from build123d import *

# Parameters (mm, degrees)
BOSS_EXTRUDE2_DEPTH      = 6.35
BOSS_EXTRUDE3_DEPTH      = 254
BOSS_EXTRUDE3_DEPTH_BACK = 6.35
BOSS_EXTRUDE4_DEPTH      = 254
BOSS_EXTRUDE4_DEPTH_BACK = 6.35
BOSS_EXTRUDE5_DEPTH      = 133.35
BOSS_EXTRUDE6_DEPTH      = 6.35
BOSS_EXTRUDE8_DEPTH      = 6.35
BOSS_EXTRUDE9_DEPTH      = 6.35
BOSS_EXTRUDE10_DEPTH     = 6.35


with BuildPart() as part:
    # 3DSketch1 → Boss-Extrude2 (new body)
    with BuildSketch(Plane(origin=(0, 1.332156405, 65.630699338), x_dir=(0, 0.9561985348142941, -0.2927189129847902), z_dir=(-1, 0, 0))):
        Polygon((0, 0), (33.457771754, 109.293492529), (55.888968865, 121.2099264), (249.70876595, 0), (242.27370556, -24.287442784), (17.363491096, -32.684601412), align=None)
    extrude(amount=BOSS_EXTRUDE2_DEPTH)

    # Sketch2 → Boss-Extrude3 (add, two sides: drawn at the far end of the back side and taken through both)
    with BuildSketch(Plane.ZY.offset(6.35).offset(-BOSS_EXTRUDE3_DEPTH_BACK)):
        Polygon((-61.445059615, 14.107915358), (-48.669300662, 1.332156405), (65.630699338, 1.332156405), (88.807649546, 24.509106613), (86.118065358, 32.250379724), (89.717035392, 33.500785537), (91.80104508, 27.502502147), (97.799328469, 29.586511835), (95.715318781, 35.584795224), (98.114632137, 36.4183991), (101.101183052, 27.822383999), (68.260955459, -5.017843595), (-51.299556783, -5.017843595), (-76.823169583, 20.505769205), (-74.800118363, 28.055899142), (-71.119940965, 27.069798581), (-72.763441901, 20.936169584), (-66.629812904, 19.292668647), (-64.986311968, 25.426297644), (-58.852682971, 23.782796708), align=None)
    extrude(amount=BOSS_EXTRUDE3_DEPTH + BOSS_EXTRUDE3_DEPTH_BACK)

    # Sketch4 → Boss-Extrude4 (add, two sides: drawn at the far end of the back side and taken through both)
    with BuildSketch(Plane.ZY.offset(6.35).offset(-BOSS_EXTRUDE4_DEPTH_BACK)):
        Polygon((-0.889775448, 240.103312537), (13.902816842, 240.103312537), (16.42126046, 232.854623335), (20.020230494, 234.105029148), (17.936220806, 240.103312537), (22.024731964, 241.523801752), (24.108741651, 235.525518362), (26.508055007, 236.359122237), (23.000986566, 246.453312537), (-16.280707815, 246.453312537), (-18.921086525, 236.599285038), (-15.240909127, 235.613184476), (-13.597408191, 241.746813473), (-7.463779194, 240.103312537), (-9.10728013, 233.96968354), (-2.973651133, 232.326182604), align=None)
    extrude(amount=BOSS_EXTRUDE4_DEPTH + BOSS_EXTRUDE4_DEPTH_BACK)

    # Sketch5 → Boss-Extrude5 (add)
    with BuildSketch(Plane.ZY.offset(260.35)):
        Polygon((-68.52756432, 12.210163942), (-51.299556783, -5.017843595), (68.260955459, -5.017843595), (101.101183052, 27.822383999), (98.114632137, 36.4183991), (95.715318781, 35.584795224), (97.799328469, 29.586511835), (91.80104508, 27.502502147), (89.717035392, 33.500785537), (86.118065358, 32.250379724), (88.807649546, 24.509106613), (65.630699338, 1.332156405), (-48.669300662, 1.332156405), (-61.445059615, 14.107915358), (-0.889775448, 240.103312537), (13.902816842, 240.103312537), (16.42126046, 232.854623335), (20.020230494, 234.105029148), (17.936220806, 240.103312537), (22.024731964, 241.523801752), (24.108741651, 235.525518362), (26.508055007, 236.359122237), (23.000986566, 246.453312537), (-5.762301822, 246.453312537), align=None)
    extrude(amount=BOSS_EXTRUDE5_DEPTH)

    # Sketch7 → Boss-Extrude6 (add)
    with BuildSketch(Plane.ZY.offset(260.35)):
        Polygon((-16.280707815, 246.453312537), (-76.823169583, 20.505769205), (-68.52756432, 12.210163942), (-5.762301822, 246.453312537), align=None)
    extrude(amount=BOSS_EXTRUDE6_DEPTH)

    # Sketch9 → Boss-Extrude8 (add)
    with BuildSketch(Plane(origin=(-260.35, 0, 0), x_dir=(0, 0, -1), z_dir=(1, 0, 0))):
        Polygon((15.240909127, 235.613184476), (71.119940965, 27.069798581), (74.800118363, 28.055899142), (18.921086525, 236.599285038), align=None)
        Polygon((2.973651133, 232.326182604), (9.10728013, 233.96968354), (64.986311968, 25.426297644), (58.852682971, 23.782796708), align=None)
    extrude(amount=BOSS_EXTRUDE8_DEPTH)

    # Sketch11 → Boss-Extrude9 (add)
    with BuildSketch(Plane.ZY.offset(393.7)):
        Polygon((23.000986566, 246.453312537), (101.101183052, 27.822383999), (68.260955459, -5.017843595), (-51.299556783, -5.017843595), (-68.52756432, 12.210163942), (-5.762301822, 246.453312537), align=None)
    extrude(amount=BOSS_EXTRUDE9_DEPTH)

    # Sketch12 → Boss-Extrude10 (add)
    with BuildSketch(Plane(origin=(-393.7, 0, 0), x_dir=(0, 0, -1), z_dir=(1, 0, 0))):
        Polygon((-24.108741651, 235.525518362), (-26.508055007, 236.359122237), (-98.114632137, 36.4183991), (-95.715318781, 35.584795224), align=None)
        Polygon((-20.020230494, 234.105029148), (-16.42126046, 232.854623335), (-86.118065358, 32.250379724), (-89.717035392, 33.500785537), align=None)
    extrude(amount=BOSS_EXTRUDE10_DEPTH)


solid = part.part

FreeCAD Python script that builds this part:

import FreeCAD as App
import Part
import Sketcher
from FreeCAD import Vector
Q = App.Units.Quantity

doc = App.newDocument("Part")
params = doc.addObject("Spreadsheet::Sheet", "Params")
for row, (alias, value) in enumerate([
    ("sketch1_height", "1 in"),
    ("sketch1_length", "9 in"),
    ("sketch1_length2", "1 in"),
    ("sketch1_height2", "4.5 in"),
    ("pad1_length", "0.25 in"),
    ("sketch2_height", "4.5 in"),
    ("sketch2_length", "0.1 in"),
    ("sketch2_length2", "0.25 in"),
    ("sketch2_length3", "0.15 in"),
    ("pad2_length", "10 in"),
    ("pad2_length2", "0.25 in"),
    ("sketch3_length", "0.1 in"),
    ("sketch3_length2", "0.15 in"),
    ("sketch3_length3", "0.25 in"),
    ("pad3_length", "10 in"),
    ("pad3_length2", "0.25 in"),
    ("sketch4_height", "4.5 in"),
    ("sketch4_length", "0.1 in"),
    ("sketch4_length2", "0.25 in"),
    ("sketch4_length3", "0.15 in"),
    ("pad4_length", "5.25 in"),
    ("pad5_length", "0.25 in"),
    ("sketch6_length", "8.5 in"),
    ("sketch6_length2", "0.15 in"),
    ("sketch6_length3", "0.25 in"),
    ("pad6_length", "0.25 in"),
    ("pad7_length", "0.25 in"),
    ("sketch8_length", "0.1 in"),
    ("sketch8_length2", "0.1 in"),
    ("sketch8_length3", "0.15 in"),
    ("sketch8_length4", "0.15 in"),
    ("pad8_length", "0.25 in"),
], start=1):
    params.set(f"A{row}", alias)
    params.set(f"B{row}", "=" + value)
    params.setAlias(f"B{row}", alias)

body = doc.addObject("PartDesign::Body", "Body")

sketch1 = body.newObject("Sketcher::SketchObject", "Sketch")
sketch1.AttachmentSupport = (doc.getObject("YZ_Plane"), [""])
sketch1.MapMode = "FlatFace"
sketch1.addGeometry([
    Part.LineSegment(Vector(1, -49, 0), Vector(1, 66, 0)),
    Part.LineSegment(Vector(1, 66, 0), Vector(28, 92, 0)),
    Part.LineSegment(Vector(28, 92, 0), Vector(240, 18, 0)),
    Part.LineSegment(Vector(240, 18, 0), Vector(240, -7, 0)),
    Part.LineSegment(Vector(240, -7, 0), Vector(19, -67, 0)),
    Part.LineSegment(Vector(19, -67, 0), Vector(1, -49, 0)),
], False)
sketch1.addConstraint([
    Sketcher.Constraint("Coincident", 0, 2, 1, 1),
    Sketcher.Constraint("Coincident", 1, 2, 2, 1),
    Sketcher.Constraint("Coincident", 2, 2, 3, 1),
    Sketcher.Constraint("Coincident", 3, 2, 4, 1),
    Sketcher.Constraint("Coincident", 4, 2, 5, 1),
    Sketcher.Constraint("Coincident", 5, 2, 0, 1),
    Sketcher.Constraint("Vertical", 0),
    Sketcher.Constraint("Vertical", 3),
    Sketcher.Constraint("Perpendicular", 1, 5),
    Sketcher.Constraint("DistanceY", 3, 2, 3, 1, Q("1 in")),
    Sketcher.Constraint("Distance", 4, Q("9 in")),
    Sketcher.Constraint("Distance", 5, Q("1 in")),
    Sketcher.Constraint("DistanceY", 0, 1, 0, 2, Q("4.5 in")),
    Sketcher.Constraint("Angle", 1, Q("45 deg")),
    Sketcher.Constraint("Angle", 4, Q("-165 deg")),
    Sketcher.Constraint("DistanceY", -1, 1, 0, 2, 65.630699),
    Sketcher.Constraint("DistanceX", -1, 1, 4, 2, 19.292669),
    Sketcher.Constraint("DistanceX", 1, 2, 2, 2, 212.60081),
])
sketch1.setExpression("Constraints[9]", "Params.sketch1_height")
sketch1.setExpression("Constraints[10]", "Params.sketch1_length")
sketch1.setExpression("Constraints[11]", "Params.sketch1_length2")
sketch1.setExpression("Constraints[12]", "Params.sketch1_height2")
pad1 = body.newObject("PartDesign::Pad", "Pad")
pad1.Profile = sketch1
pad1.setExpression("Length", "Params.pad1_length")
pad1.Reversed = True

sketch2 = body.newObject("Sketcher::SketchObject", "Sketch001")
sketch2.AttachmentSupport = (doc.getObject("YZ_Plane"), [""])
sketch2.MapMode = "FlatFace"
sketch2.AttachmentOffset = App.Placement(Vector(0, 0, -0.25 * 25.4), App.Rotation())
sketch2.addGeometry([
    Part.LineSegment(Vector(1.3, -48.7, 0), Vector(14.1, -61.4, 0)),
    Part.LineSegment(Vector(14.1, -61.4, 0), Vector(23.8, -58.9, 0)),
    Part.LineSegment(Vector(23.8, -58.9, 0), Vector(25.4, -65, 0)),
    Part.LineSegment(Vector(25.4, -65, 0), Vector(19.3, -66.6, 0)),
    Part.LineSegment(Vector(19.3, -66.6, 0), Vector(20.9, -72.8, 0)),
    Part.LineSegment(Vector(20.9, -72.8, 0), Vector(27.1, -71.1, 0)),
    Part.LineSegment(Vector(27.1, -71.1, 0), Vector(28.1, -74.8, 0)),
    Part.LineSegment(Vector(28.1, -74.8, 0), Vector(20.5, -76.8, 0)),
    Part.LineSegment(Vector(20.5, -76.8, 0), Vector(-5, -51.3, 0)),
    Part.LineSegment(Vector(-5, -51.3, 0), Vector(-5, 68.3, 0)),
    Part.LineSegment(Vector(-5, 68.3, 0), Vector(27.8, 101.1, 0)),
    Part.LineSegment(Vector(27.8, 101.1, 0), Vector(36.4, 98.1, 0)),
    Part.LineSegment(Vector(36.4, 98.1, 0), Vector(35.6, 95.7, 0)),
    Part.LineSegment(Vector(35.6, 95.7, 0), Vector(29.6, 97.8, 0)),
    Part.LineSegment(Vector(29.6, 97.8, 0), Vector(27.5, 91.8, 0)),
    Part.LineSegment(Vector(27.5, 91.8, 0), Vector(33.5, 89.7, 0)),
    Part.LineSegment(Vector(33.5, 89.7, 0), Vector(32.3, 86.1, 0)),
    Part.LineSegment(Vector(32.3, 86.1, 0), Vector(24.5, 88.8, 0)),
    Part.LineSegment(Vector(24.5, 88.8, 0), Vector(1.3, 65.6, 0)),
    Part.LineSegment(Vector(1.3, 65.6, 0), Vector(1.3, -48.7, 0)),
], False)
sketch2.addConstraint([
    Sketcher.Constraint("Coincident", 0, 2, 1, 1),
    Sketcher.Constraint("Coincident", 1, 2, 2, 1),
    Sketcher.Constraint("Coincident", 2, 2, 3, 1),
    Sketcher.Constraint("Coincident", 3, 2, 4, 1),
    Sketcher.Constraint("Coincident", 4, 2, 5, 1),
    Sketcher.Constraint("Coincident", 5, 2, 6, 1),
    Sketcher.Constraint("Coincident", 6, 2, 7, 1),
    Sketcher.Constraint("Coincident", 7, 2, 8, 1),
    Sketcher.Constraint("Coincident", 8, 2, 9, 1),
    Sketcher.Constraint("Coincident", 9, 2, 10, 1),
    Sketcher.Constraint("Coincident", 10, 2, 11, 1),
    Sketcher.Constraint("Coincident", 11, 2, 12, 1),
    Sketcher.Constraint("Coincident", 12, 2, 13, 1),
    Sketcher.Constraint("Coincident", 13, 2, 14, 1),
    Sketcher.Constraint("Coincident", 14, 2, 15, 1),
    Sketcher.Constraint("Coincident", 15, 2, 16, 1),
    Sketcher.Constraint("Coincident", 16, 2, 17, 1),
    Sketcher.Constraint("Coincident", 17, 2, 18, 1),
    Sketcher.Constraint("Coincident", 18, 2, 19, 1),
    Sketcher.Constraint("Coincident", 19, 2, 0, 1),
    Sketcher.Constraint("Vertical", 9),
    Sketcher.Constraint("Vertical", 19),
    Sketcher.Constraint("Perpendicular", 1, 2),
    Sketcher.Constraint("Perpendicular", 2, 3),
    Sketcher.Constraint("Perpendicular", 3, 4),
    Sketcher.Constraint("Perpendicular", 4, 5),
    Sketcher.Constraint("Perpendicular", 5, 6),
    Sketcher.Constraint("Perpendicular", 6, 7),
    Sketcher.Constraint("Parallel", 0, 8),
    Sketcher.Constraint("Perpendicular", 8, 10),
    Sketcher.Constraint("Perpendicular", 11, 12),
    Sketcher.Constraint("Perpendicular", 12, 13),
    Sketcher.Constraint("Perpendicular", 13, 14),
    Sketcher.Constraint("Perpendicular", 14, 15),
    Sketcher.Constraint("Perpendicular", 15, 16),
    Sketcher.Constraint("Perpendicular", 16, 17),
    Sketcher.Constraint("Parallel", 10, 18),
    Sketcher.Constraint("Equal", 2, 3),
    Sketcher.Constraint("Equal", 3, 4),
    Sketcher.Constraint("Equal", 4, 5),
    Sketcher.Constraint("Equal", 5, 13),
    Sketcher.Constraint("Equal", 13, 14),
    Sketcher.Constraint("Equal", 14, 15),
    Sketcher.Constraint("Equal", 6, 16),
    Sketcher.Constraint("DistanceY", 19, 2, 19, 1, Q("4.5 in")),
    Sketcher.Constraint("Angle", 0, Q("-45 deg")),
    Sketcher.Constraint("Angle", 1, Q("15 deg")),
    Sketcher.Constraint("Distance", 12, Q("0.1 in")),
    Sketcher.Constraint("Distance", 2, Q("0.25 in")),
    Sketcher.Constraint("Distance", 6, Q("0.15 in")),
    Sketcher.Constraint("DistanceX", 9, 2, 18, 2, Q("0.25 in")),
    Sketcher.Constraint("DistanceX", -1, 1, 16, 2, Q("1.2697 in")),
    Sketcher.Constraint("DistanceX", -1, 1, 5, 2, 27.069799),
    Sketcher.Constraint("DistanceX", -1, 1, 11, 2, 36.418399),
    Sketcher.Constraint("DistanceY", -1, 1, 18, 2, 65.630699),
    Sketcher.Constraint("DistanceX", 7, 2, 4, 2, 0.4304),
    Sketcher.Constraint("DistanceY", 1, 2, 12, 2, 154.568002),
    Sketcher.Constraint("DistanceX", 10, 2, 15, 2, 5.678402),
    Sketcher.Constraint("Distance", 0, 18.067652),
    Sketcher.Constraint("Distance", 8, 36.095839),
])
sketch2.setExpression("Constraints[44]", "Params.sketch2_height")
sketch2.setExpression("Constraints[47]", "Params.sketch2_length")
sketch2.setExpression("Constraints[48]", "Params.sketch2_length2")
sketch2.setExpression("Constraints[49]", "Params.sketch2_length3")
pad2 = body.newObject("PartDesign::Pad", "Pad001")
pad2.Profile = sketch2
pad2.Type = "TwoLengths"
pad2.setExpression("Length", "Params.pad2_length")
pad2.setExpression("Length2", "Params.pad2_length2")
pad2.Reversed = True

sketch3 = body.newObject("Sketcher::SketchObject", "Sketch002")
sketch3.AttachmentSupport = (doc.getObject("YZ_Plane"), [""])
sketch3.MapMode = "FlatFace"
sketch3.AttachmentOffset = App.Placement(Vector(0, 0, -0.25 * 25.4), App.Rotation())
sketch3.addGeometry([
    Part.LineSegment(Vector(240.1, -0.9, 0), Vector(240.1, 13.9, 0)),
    Part.LineSegment(Vector(240.1, 13.9, 0), Vector(232.9, 16.4, 0)),
    Part.LineSegment(Vector(232.9, 16.4, 0), Vector(234.1, 20, 0)),
    Part.LineSegment(Vector(234.1, 20, 0), Vector(240.1, 17.9, 0)),
    Part.LineSegment(Vector(240.1, 17.9, 0), Vector(241.5, 22, 0)),
    Part.LineSegment(Vector(241.5, 22, 0), Vector(235.5, 24.1, 0)),
    Part.LineSegment(Vector(235.5, 24.1, 0), Vector(236.4, 26.5, 0)),
    Part.LineSegment(Vector(236.4, 26.5, 0), Vector(246.5, 23, 0)),
    Part.LineSegment(Vector(246.5, 23, 0), Vector(246.5, -16.3, 0)),
    Part.LineSegment(Vector(246.5, -16.3, 0), Vector(236.6, -18.9, 0)),
    Part.LineSegment(Vector(236.6, -18.9, 0), Vector(235.6, -15.2, 0)),
    Part.LineSegment(Vector(235.6, -15.2, 0), Vector(241.7, -13.6, 0)),
    Part.LineSegment(Vector(241.7, -13.6, 0), Vector(240.1, -7.5, 0)),
    Part.LineSegment(Vector(240.1, -7.5, 0), Vector(234, -9.1, 0)),
    Part.LineSegment(Vector(234, -9.1, 0), Vector(232.3, -3, 0)),
    Part.LineSegment(Vector(232.3, -3, 0), Vector(240.1, -0.9, 0)),
], False)
sketch3.addConstraint([
    Sketcher.Constraint("Coincident", 0, 2, 1, 1),
    Sketcher.Constraint("Coincident", 1, 2, 2, 1),
    Sketcher.Constraint("Coincident", 2, 2, 3, 1),
    Sketcher.Constraint("Coincident", 3, 2, 4, 1),
    Sketcher.Constraint("Coincident", 4, 2, 5, 1),
    Sketcher.Constraint("Coincident", 5, 2, 6, 1),
    Sketcher.Constraint("Coincident", 6, 2, 7, 1),
    Sketcher.Constraint("Coincident", 7, 2, 8, 1),
    Sketcher.Constraint("Coincident", 8, 2, 9, 1),
    Sketcher.Constraint("Coincident", 9, 2, 10, 1),
    Sketcher.Constraint("Coincident", 10, 2, 11, 1),
    Sketcher.Constraint("Coincident", 11, 2, 12, 1),
    Sketcher.Constraint("Coincident", 12, 2, 13, 1),
    Sketcher.Constraint("Coincident", 13, 2, 14, 1),
    Sketcher.Constraint("Coincident", 14, 2, 15, 1),
    Sketcher.Constraint("Coincident", 15, 2, 0, 1),
    Sketcher.Constraint("Vertical", 0),
    Sketcher.Constraint("Vertical", 8),
    Sketcher.Constraint("Perpendicular", 1, 2),
    Sketcher.Constraint("Perpendicular", 2, 3),
    Sketcher.Constraint("Perpendicular", 3, 4),
    Sketcher.Constraint("Perpendicular", 4, 5),
    Sketcher.Constraint("Perpendicular", 5, 6),
    Sketcher.Constraint("Perpendicular", 6, 7),
    Sketcher.Constraint("Perpendicular", 9, 10),
    Sketcher.Constraint("Perpendicular", 10, 11),
    Sketcher.Constraint("Perpendicular", 11, 12),
    Sketcher.Constraint("Perpendicular", 12, 13),
    Sketcher.Constraint("Perpendicular", 13, 14),
    Sketcher.Constraint("Perpendicular", 14, 15),
    Sketcher.Constraint("Vertical", 0, 2, 3, 2),
    Sketcher.Constraint("Vertical", 3, 2, 12, 2),
    Sketcher.Constraint("Equal", 3, 5),
    Sketcher.Constraint("Equal", 2, 10),
    Sketcher.Constraint("Equal", 5, 11),
    Sketcher.Constraint("Equal", 11, 12),
    Sketcher.Constraint("Equal", 12, 13),
    Sketcher.Constraint("Equal", 13, 14),
    Sketcher.Constraint("Angle", 9, Q("-165 deg")),
    Sketcher.Constraint("Distance", 6, Q("0.1 in")),
    Sketcher.Constraint("Distance", 2, Q("0.15 in")),
    Sketcher.Constraint("Distance", 3, Q("0.25 in")),
    Sketcher.Constraint("DistanceX", 3, 2, 7, 2, Q("0.25 in")),
    Sketcher.Constraint("DistanceX", -1, 1, 14, 2, Q("9.1467001 in")),
    Sketcher.Constraint("DistanceX", -1, 1, 4, 2, 241.523802),
    Sketcher.Constraint("DistanceY", 2, 2, 4, 2, 2.004501),
    Sketcher.Constraint("DistanceY", 0, 1, 0, 2, 14.792592),
    Sketcher.Constraint("DistanceY", -1, 1, 1, 2, 16.42126),
])
sketch3.setExpression("Constraints[39]", "Params.sketch3_length")
sketch3.setExpression("Constraints[40]", "Params.sketch3_length2")
sketch3.setExpression("Constraints[41]", "Params.sketch3_length3")
pad3 = body.newObject("PartDesign::Pad", "Pad002")
pad3.Profile = sketch3
pad3.Type = "TwoLengths"
pad3.setExpression("Length", "Params.pad3_length")
pad3.setExpression("Length2", "Params.pad3_length2")
pad3.Reversed = True

sketch4 = body.newObject("Sketcher::SketchObject", "Sketch003")
sketch4.AttachmentSupport = (doc.getObject("YZ_Plane"), [""])
sketch4.MapMode = "FlatFace"
sketch4.AttachmentOffset = App.Placement(Vector(0, 0, -10.25 * 25.4), App.Rotation())
sketch4.addGeometry([
    Part.LineSegment(Vector(12.2, -68.5, 0), Vector(-5, -51.3, 0)),
    Part.LineSegment(Vector(-5, -51.3, 0), Vector(-5, 68.3, 0)),
    Part.LineSegment(Vector(-5, 68.3, 0), Vector(27.8, 101.1, 0)),
    Part.LineSegment(Vector(27.8, 101.1, 0), Vector(36.4, 98.1, 0)),
    Part.LineSegment(Vector(36.4, 98.1, 0), Vector(35.6, 95.7, 0)),
    Part.LineSegment(Vector(35.6, 95.7, 0), Vector(29.6, 97.8, 0)),
    Part.LineSegment(Vector(29.6, 97.8, 0), Vector(27.5, 91.8, 0)),
    Part.LineSegment(Vector(27.5, 91.8, 0), Vector(33.5, 89.7, 0)),
    Part.LineSegment(Vector(33.5, 89.7, 0), Vector(32.3, 86.1, 0)),
    Part.LineSegment(Vector(32.3, 86.1, 0), Vector(24.5, 88.8, 0)),
    Part.LineSegment(Vector(24.5, 88.8, 0), Vector(1.3, 65.6, 0)),
    Part.LineSegment(Vector(1.3, 65.6, 0), Vector(1.3, -48.7, 0)),
    Part.LineSegment(Vector(1.3, -48.7, 0), Vector(14.1, -61.4, 0)),
    Part.LineSegment(Vector(14.1, -61.4, 0), Vector(240.1, -0.9, 0)),
    Part.LineSegment(Vector(240.1, -0.9, 0), Vector(240.1, 13.9, 0)),
    Part.LineSegment(Vector(240.1, 13.9, 0), Vector(232.9, 16.4, 0)),
    Part.LineSegment(Vector(232.9, 16.4, 0), Vector(234.1, 20, 0)),
    Part.LineSegment(Vector(234.1, 20, 0), Vector(240.1, 17.9, 0)),
    Part.LineSegment(Vector(240.1, 17.9, 0), Vector(241.5, 22, 0)),
    Part.LineSegment(Vector(241.5, 22, 0), Vector(235.5, 24.1, 0)),
    Part.LineSegment(Vector(235.5, 24.1, 0), Vector(236.4, 26.5, 0)),
    Part.LineSegment(Vector(236.4, 26.5, 0), Vector(246.5, 23, 0)),
    Part.LineSegment(Vector(246.5, 23, 0), Vector(246.5, -5.8, 0)),
    Part.LineSegment(Vector(246.5, -5.8, 0), Vector(12.2, -68.5, 0)),
], False)
sketch4.addConstraint([
    Sketcher.Constraint("Coincident", 0, 2, 1, 1),
    Sketcher.Constraint("Coincident", 1, 2, 2, 1),
    Sketcher.Constraint("Coincident", 2, 2, 3, 1),
    Sketcher.Constraint("Coincident", 3, 2, 4, 1),
    Sketcher.Constraint("Coincident", 4, 2, 5, 1),
    Sketcher.Constraint("Coincident", 5, 2, 6, 1),
    Sketcher.Constraint("Coincident", 6, 2, 7, 1),
    Sketcher.Constraint("Coincident", 7, 2, 8, 1),
    Sketcher.Constraint("Coincident", 8, 2, 9, 1),
    Sketcher.Constraint("Coincident", 9, 2, 10, 1),
    Sketcher.Constraint("Coincident", 10, 2, 11, 1),
    Sketcher.Constraint("Coincident", 11, 2, 12, 1),
    Sketcher.Constraint("Coincident", 12, 2, 13, 1),
    Sketcher.Constraint("Coincident", 13, 2, 14, 1),
    Sketcher.Constraint("Coincident", 14, 2, 15, 1),
    Sketcher.Constraint("Coincident", 15, 2, 16, 1),
    Sketcher.Constraint("Coincident", 16, 2, 17, 1),
    Sketcher.Constraint("Coincident", 17, 2, 18, 1),
    Sketcher.Constraint("Coincident", 18, 2, 19, 1),
    Sketcher.Constraint("Coincident", 19, 2, 20, 1),
    Sketcher.Constraint("Coincident", 20, 2, 21, 1),
    Sketcher.Constraint("Coincident", 21, 2, 22, 1),
    Sketcher.Constraint("Coincident", 22, 2, 23, 1),
    Sketcher.Constraint("Coincident", 23, 2, 0, 1),
    Sketcher.Constraint("Vertical", 1),
    Sketcher.Constraint("Vertical", 11),
    Sketcher.Constraint("Vertical", 14),
    Sketcher.Constraint("Vertical", 22),
    Sketcher.Constraint("Perpendicular", 0, 2),
    Sketcher.Constraint("Perpendicular", 3, 4),
    Sketcher.Constraint("Perpendicular", 4, 5),
    Sketcher.Constraint("Perpendicular", 5, 6),
    Sketcher.Constraint("Perpendicular", 6, 7),
    Sketcher.Constraint("Perpendicular", 7, 8),
    Sketcher.Constraint("Perpendicular", 8, 9),
    Sketcher.Constraint("Parallel", 2, 10),
    Sketcher.Constraint("Perpendicular", 10, 12),
    Sketcher.Constraint("Parallel", 9, 15),
    Sketcher.Constraint("Perpendicular", 15, 16),
    Sketcher.Constraint("Perpendicular", 16, 17),
    Sketcher.Constraint("Perpendicular", 17, 18),
    Sketcher.Constraint("Perpendicular", 18, 19),
    Sketcher.Constraint("Perpendicular", 19, 20),
    Sketcher.Constraint("Perpendicular", 20, 21),
    Sketcher.Constraint("Parallel", 13, 23),
    Sketcher.Constraint("Vertical", 14, 2, 17, 2),
    Sketcher.Constraint("Equal", 5, 6),
    Sketcher.Constraint("Equal", 6, 7),
    Sketcher.Constraint("Equal", 8, 16),
    Sketcher.Constraint("Equal", 7, 17),
    Sketcher.Constraint("Equal", 17, 19),
    Sketcher.Constraint("Equal", 4, 20),
    Sketcher.Constraint("DistanceY", 11, 2, 11, 1, Q("4.5 in")),
    Sketcher.Constraint("Angle", 0, Q("135 deg")),
    Sketcher.Constraint("Angle", 13, Q("15 deg")),
    Sketcher.Constraint("Distance", 4, Q("0.1 in")),
    Sketcher.Constraint("Distance", 5, Q("0.25 in")),
    Sketcher.Constraint("Distance", 8, Q("0.15 in")),
    Sketcher.Constraint("DistanceX", 1, 2, 10, 2, Q("0.25 in")),
    Sketcher.Constraint("DistanceX", 17, 2, 21, 2, Q("0.25 in")),
    Sketcher.Constraint("DistanceX", -1, 1, 8, 2, Q("1.2697 in")),
    Sketcher.Constraint("DistanceY", 22, 2, 22, 1, 28.763288),
    Sketcher.Constraint("DistanceX", -1, 1, 3, 2, 36.418399),
    Sketcher.Constraint("DistanceY", -1, 1, 10, 2, 65.630699),
    Sketcher.Constraint("DistanceX", -1, 1, 18, 2, 241.523802),
    Sketcher.Constraint("DistanceY", 22, 2, -1, 1, 5.762302),
    Sketcher.Constraint("DistanceX", 2, 2, 7, 2, 5.678402),
    Sketcher.Constraint("DistanceY", 14, 2, 4, 2, 81.812502),
    Sketcher.Constraint("DistanceY", 16, 2, 18, 2, 2.004501),
    Sketcher.Constraint("Distance", 0, 24.364082),
    Sketcher.Constraint("Distance", 12, 18.067652),
    Sketcher.Constraint("Distance", 13, 233.967652),
])
sketch4.setExpression("Constraints[52]", "Params.sketch4_height")
sketch4.setExpression("Constraints[55]", "Params.sketch4_length")
sketch4.setExpression("Constraints[56]", "Params.sketch4_length2")
sketch4.setExpression("Constraints[57]", "Params.sketch4_length3")
pad4 = body.newObject("PartDesign::Pad", "Pad003")
pad4.Profile = sketch4
pad4.setExpression("Length", "Params.pad4_length")
pad4.Reversed = True

sketch5 = body.newObject("Sketcher::SketchObject", "Sketch004")
sketch5.AttachmentSupport = (doc.getObject("YZ_Plane"), [""])
sketch5.MapMode = "FlatFace"
sketch5.AttachmentOffset = App.Placement(Vector(0, 0, -10.25 * 25.4), App.Rotation())
sketch5.addGeometry([
    Part.LineSegment(Vector(246, -16, 0), Vector(21, -77, 0)),
    Part.LineSegment(Vector(21, -77, 0), Vector(12, -69, 0)),
    Part.LineSegment(Vector(12, -69, 0), Vector(246, -6, 0)),
    Part.LineSegment(Vector(246, -6, 0), Vector(246, -16, 0)),
], False)
sketch5.addConstraint([
    Sketcher.Constraint("Coincident", 0, 2, 1, 1),
    Sketcher.Constraint("Coincident", 1, 2, 2, 1),
    Sketcher.Constraint("Coincident", 2, 2, 3, 1),
    Sketcher.Constraint("Coincident", 3, 2, 0, 1),
    Sketcher.Constraint("Vertical", 3),
    Sketcher.Constraint("Parallel", 0, 2),
    Sketcher.Constraint("Angle", 0, Q("-165 deg")),
    Sketcher.Constraint("Angle", 1, Q("135 deg")),
    Sketcher.Constraint("DistanceY", 2, 2, -1, 1, 5.762302),
    Sketcher.Constraint("Distance", 0, 233.91811),
    Sketcher.Constraint("DistanceY", 3, 2, 3, 1, 10.518406),
    Sketcher.Constraint("DistanceX", -1, 1, 0, 2, 20.505769),
])
pad5 = body.newObject("PartDesign::Pad", "Pad004")
pad5.Profile = sketch5
pad5.setExpression("Length", "Params.pad5_length")
pad5.Reversed = True

sketch6 = body.newObject("Sketcher::SketchObject", "Sketch005")
sketch6.AttachmentSupport = (doc.getObject("YZ_Plane"), [""])
sketch6.MapMode = "FlatFace"
sketch6.AttachmentOffset = App.Placement(Vector(0, 0, -10.25 * 25.4), App.Rotation())
sketch6.addGeometry([
    Part.LineSegment(Vector(235.6, -15.2, 0), Vector(27.1, -71.1, 0)),
    Part.LineSegment(Vector(27.1, -71.1, 0), Vector(28.1, -74.8, 0)),
    Part.LineSegment(Vector(28.1, -74.8, 0), Vector(236.6, -18.9, 0)),
    Part.LineSegment(Vector(236.6, -18.9, 0), Vector(235.6, -15.2, 0)),
    Part.LineSegment(Vector(234, -9.1, 0), Vector(232.3, -3, 0)),
    Part.LineSegment(Vector(232.3, -3, 0), Vector(23.8, -58.9, 0)),
    Part.LineSegment(Vector(23.8, -58.9, 0), Vector(25.4, -65, 0)),
    Part.LineSegment(Vector(25.4, -65, 0), Vector(234, -9.1, 0)),
], False)
sketch6.addConstraint([
    Sketcher.Constraint("Coincident", 0, 2, 1, 1),
    Sketcher.Constraint("Coincident", 1, 2, 2, 1),
    Sketcher.Constraint("Coincident", 2, 2, 3, 1),
    Sketcher.Constraint("Coincident", 3, 2, 0, 1),
    Sketcher.Constraint("Coincident", 4, 2, 5, 1),
    Sketcher.Constraint("Coincident", 5, 2, 6, 1),
    Sketcher.Constraint("Coincident", 6, 2, 7, 1),
    Sketcher.Constraint("Coincident", 7, 2, 4, 1),
    Sketcher.Constraint("Perpendicular", 0, 1),
    Sketcher.Constraint("Perpendicular", 1, 2),
    Sketcher.Constraint("Perpendicular", 2, 3),
    Sketcher.Constraint("Parallel", 3, 4),
    Sketcher.Constraint("Perpendicular", 4, 5),
    Sketcher.Constraint("Perpendicular", 5, 6),
    Sketcher.Constraint("Perpendicular", 6, 7),
    Sketcher.Constraint("Equal", 2, 5),
    Sketcher.Constraint("Angle", 0, Q("-165 deg")),
    Sketcher.Constraint("Distance", 0, Q("8.5 in")),
    Sketcher.Constraint("Distance", 1, Q("0.15 in")),
    Sketcher.Constraint("Distance", 4, Q("0.25 in")),
    Sketcher.Constraint("DistanceX", -1, 1, 4, 2, Q("9.1467001 in")),
    Sketcher.Constraint("DistanceX", -1, 1, 0, 2, 27.069799),
    Sketcher.Constraint("DistanceY", 0, 2, -1, 1, 71.119941),
    Sketcher.Constraint("DistanceY", 4, 2, -1, 1, 2.973651),
])
sketch6.setExpression("Constraints[17]", "Params.sketch6_length")
sketch6.setExpression("Constraints[18]", "Params.sketch6_length2")
sketch6.setExpression("Constraints[19]", "Params.sketch6_length3")
pad6 = body.newObject("PartDesign::Pad", "Pad005")
pad6.Profile = sketch6
pad6.setExpression("Length", "Params.pad6_length")

sketch7 = body.newObject("Sketcher::SketchObject", "Sketch006")
sketch7.AttachmentSupport = (doc.getObject("YZ_Plane"), [""])
sketch7.MapMode = "FlatFace"
sketch7.AttachmentOffset = App.Placement(Vector(0, 0, -15.5 * 25.4), App.Rotation())
sketch7.addGeometry([
    Part.LineSegment(Vector(28, 101, 0), Vector(246, 23, 0)),
    Part.LineSegment(Vector(246, 23, 0), Vector(246, -6, 0)),
    Part.LineSegment(Vector(246, -6, 0), Vector(12, -69, 0)),
    Part.LineSegment(Vector(12, -69, 0), Vector(-5, -51, 0)),
    Part.LineSegment(Vector(-5, -51, 0), Vector(-5, 68, 0)),
    Part.LineSegment(Vector(-5, 68, 0), Vector(28, 101, 0)),
], False)
sketch7.addConstraint([
    Sketcher.Constraint("Coincident", 0, 2, 1, 1),
    Sketcher.Constraint("Coincident", 1, 2, 2, 1),
    Sketcher.Constraint("Coincident", 2, 2, 3, 1),
    Sketcher.Constraint("Coincident", 3, 2, 4, 1),
    Sketcher.Constraint("Coincident", 4, 2, 5, 1),
    Sketcher.Constraint("Coincident", 5, 2, 0, 1),
    Sketcher.Constraint("Vertical", 1),
    Sketcher.Constraint("Vertical", 4),
    Sketcher.Constraint("Perpendicular", 3, 5),
    Sketcher.Constraint("Angle", 2, Q("-165 deg")),
    Sketcher.Constraint("Angle", 3, Q("135 deg")),
    Sketcher.Constraint("DistanceY", 1, 2, 1, 1, 28.763288),
    Sketcher.Constraint("DistanceY", 1, 2, -1, 1, 5.762302),
    Sketcher.Constraint("Distance", 3, 24.364082),
    Sketcher.Constraint("DistanceY", 4, 1, 4, 2, 119.560512),
    Sketcher.Constraint("DistanceX", 2, 2, 1, 2, 234.243149),
    Sketcher.Constraint("DistanceY", 3, 2, 5, 2, 152.40074),
    Sketcher.Constraint("DistanceX", -1, 1, 0, 2, 246.453313),
])
pad7 = body.newObject("PartDesign::Pad", "Pad006")
pad7.Profile = sketch7
pad7.setExpression("Length", "Params.pad7_length")
pad7.Reversed = True

sketch8 = body.newObject("Sketcher::SketchObject", "Sketch007")
sketch8.AttachmentSupport = (doc.getObject("YZ_Plane"), [""])
sketch8.MapMode = "FlatFace"
sketch8.AttachmentOffset = App.Placement(Vector(0, 0, -15.5 * 25.4), App.Rotation())
sketch8.addGeometry([
    Part.LineSegment(Vector(235.525518, 24.108742, 0), Vector(236.359122, 26.508055, 0)),
    Part.LineSegment(Vector(236.359122, 26.508055, 0), Vector(36.418399, 98.114632, 0)),
    Part.LineSegment(Vector(36.418399, 98.114632, 0), Vector(35.584795, 95.715319, 0)),
    Part.LineSegment(Vector(35.584795, 95.715319, 0), Vector(235.525518, 24.108742, 0)),
    Part.LineSegment(Vector(232.854623, 16.42126, 0), Vector(234.105029, 20.02023, 0)),
    Part.LineSegment(Vector(234.105029, 20.02023, 0), Vector(33.500786, 89.717035, 0)),
    Part.LineSegment(Vector(33.500786, 89.717035, 0), Vector(32.25038, 86.118065, 0)),
    Part.LineSegment(Vector(32.25038, 86.118065, 0), Vector(232.854623, 16.42126, 0)),
], False)
sketch8.addConstraint([
    Sketcher.Constraint("Coincident", 0, 2, 1, 1),
    Sketcher.Constraint("Coincident", 1, 2, 2, 1),
    Sketcher.Constraint("Coincident", 2, 2, 3, 1),
    Sketcher.Constraint("Coincident", 3, 2, 0, 1),
    Sketcher.Constraint("Coincident", 4, 2, 5, 1),
    Sketcher.Constraint("Coincident", 5, 2, 6, 1),
    Sketcher.Constraint("Coincident", 6, 2, 7, 1),
    Sketcher.Constraint("Coincident", 7, 2, 4, 1),
    Sketcher.Constraint("Distance", 0, Q("0.1 in")),
    Sketcher.Constraint("Distance", 2, Q("0.1 in")),
    Sketcher.Constraint("Distance", 4, Q("0.15 in")),
    Sketcher.Constraint("Distance", 6, Q("0.15 in")),
    Sketcher.Constraint("DistanceX", -1, 1, 6, 2, Q("1.2697 in")),
    Sketcher.Constraint("DistanceX", -1, 1, 1, 2, 36.418399),
    Sketcher.Constraint("DistanceY", 4, 2, 1, 2, 78.094402),
    Sketcher.Constraint("DistanceX", 7, 2, 0, 2, 3.504499),
    Sketcher.Constraint("Distance", 1, 212.37654),
    Sketcher.Constraint("Distance", 3, 212.37654),
    Sketcher.Constraint("DistanceY", -1, 1, 2, 2, 95.715319),
    Sketcher.Constraint("DistanceX", -1, 1, 3, 2, 235.525518),
    Sketcher.Constraint("DistanceY", -1, 1, 3, 2, 24.108742),
    Sketcher.Constraint("DistanceX", -1, 1, 4, 2, 234.105029),
    Sketcher.Constraint("DistanceX", 5, 2, 2, 2, 2.08401),
    Sketcher.Constraint("DistanceY", 0, 2, 5, 2, 63.20898),
])
sketch8.setExpression("Constraints[8]", "Params.sketch8_length")
sketch8.setExpression("Constraints[9]", "Params.sketch8_length2")
sketch8.setExpression("Constraints[10]", "Params.sketch8_length3")
sketch8.setExpression("Constraints[11]", "Params.sketch8_length4")
pad8 = body.newObject("PartDesign::Pad", "Pad007")
pad8.Profile = sketch8
pad8.setExpression("Length", "Params.pad8_length")

doc.recompute()
